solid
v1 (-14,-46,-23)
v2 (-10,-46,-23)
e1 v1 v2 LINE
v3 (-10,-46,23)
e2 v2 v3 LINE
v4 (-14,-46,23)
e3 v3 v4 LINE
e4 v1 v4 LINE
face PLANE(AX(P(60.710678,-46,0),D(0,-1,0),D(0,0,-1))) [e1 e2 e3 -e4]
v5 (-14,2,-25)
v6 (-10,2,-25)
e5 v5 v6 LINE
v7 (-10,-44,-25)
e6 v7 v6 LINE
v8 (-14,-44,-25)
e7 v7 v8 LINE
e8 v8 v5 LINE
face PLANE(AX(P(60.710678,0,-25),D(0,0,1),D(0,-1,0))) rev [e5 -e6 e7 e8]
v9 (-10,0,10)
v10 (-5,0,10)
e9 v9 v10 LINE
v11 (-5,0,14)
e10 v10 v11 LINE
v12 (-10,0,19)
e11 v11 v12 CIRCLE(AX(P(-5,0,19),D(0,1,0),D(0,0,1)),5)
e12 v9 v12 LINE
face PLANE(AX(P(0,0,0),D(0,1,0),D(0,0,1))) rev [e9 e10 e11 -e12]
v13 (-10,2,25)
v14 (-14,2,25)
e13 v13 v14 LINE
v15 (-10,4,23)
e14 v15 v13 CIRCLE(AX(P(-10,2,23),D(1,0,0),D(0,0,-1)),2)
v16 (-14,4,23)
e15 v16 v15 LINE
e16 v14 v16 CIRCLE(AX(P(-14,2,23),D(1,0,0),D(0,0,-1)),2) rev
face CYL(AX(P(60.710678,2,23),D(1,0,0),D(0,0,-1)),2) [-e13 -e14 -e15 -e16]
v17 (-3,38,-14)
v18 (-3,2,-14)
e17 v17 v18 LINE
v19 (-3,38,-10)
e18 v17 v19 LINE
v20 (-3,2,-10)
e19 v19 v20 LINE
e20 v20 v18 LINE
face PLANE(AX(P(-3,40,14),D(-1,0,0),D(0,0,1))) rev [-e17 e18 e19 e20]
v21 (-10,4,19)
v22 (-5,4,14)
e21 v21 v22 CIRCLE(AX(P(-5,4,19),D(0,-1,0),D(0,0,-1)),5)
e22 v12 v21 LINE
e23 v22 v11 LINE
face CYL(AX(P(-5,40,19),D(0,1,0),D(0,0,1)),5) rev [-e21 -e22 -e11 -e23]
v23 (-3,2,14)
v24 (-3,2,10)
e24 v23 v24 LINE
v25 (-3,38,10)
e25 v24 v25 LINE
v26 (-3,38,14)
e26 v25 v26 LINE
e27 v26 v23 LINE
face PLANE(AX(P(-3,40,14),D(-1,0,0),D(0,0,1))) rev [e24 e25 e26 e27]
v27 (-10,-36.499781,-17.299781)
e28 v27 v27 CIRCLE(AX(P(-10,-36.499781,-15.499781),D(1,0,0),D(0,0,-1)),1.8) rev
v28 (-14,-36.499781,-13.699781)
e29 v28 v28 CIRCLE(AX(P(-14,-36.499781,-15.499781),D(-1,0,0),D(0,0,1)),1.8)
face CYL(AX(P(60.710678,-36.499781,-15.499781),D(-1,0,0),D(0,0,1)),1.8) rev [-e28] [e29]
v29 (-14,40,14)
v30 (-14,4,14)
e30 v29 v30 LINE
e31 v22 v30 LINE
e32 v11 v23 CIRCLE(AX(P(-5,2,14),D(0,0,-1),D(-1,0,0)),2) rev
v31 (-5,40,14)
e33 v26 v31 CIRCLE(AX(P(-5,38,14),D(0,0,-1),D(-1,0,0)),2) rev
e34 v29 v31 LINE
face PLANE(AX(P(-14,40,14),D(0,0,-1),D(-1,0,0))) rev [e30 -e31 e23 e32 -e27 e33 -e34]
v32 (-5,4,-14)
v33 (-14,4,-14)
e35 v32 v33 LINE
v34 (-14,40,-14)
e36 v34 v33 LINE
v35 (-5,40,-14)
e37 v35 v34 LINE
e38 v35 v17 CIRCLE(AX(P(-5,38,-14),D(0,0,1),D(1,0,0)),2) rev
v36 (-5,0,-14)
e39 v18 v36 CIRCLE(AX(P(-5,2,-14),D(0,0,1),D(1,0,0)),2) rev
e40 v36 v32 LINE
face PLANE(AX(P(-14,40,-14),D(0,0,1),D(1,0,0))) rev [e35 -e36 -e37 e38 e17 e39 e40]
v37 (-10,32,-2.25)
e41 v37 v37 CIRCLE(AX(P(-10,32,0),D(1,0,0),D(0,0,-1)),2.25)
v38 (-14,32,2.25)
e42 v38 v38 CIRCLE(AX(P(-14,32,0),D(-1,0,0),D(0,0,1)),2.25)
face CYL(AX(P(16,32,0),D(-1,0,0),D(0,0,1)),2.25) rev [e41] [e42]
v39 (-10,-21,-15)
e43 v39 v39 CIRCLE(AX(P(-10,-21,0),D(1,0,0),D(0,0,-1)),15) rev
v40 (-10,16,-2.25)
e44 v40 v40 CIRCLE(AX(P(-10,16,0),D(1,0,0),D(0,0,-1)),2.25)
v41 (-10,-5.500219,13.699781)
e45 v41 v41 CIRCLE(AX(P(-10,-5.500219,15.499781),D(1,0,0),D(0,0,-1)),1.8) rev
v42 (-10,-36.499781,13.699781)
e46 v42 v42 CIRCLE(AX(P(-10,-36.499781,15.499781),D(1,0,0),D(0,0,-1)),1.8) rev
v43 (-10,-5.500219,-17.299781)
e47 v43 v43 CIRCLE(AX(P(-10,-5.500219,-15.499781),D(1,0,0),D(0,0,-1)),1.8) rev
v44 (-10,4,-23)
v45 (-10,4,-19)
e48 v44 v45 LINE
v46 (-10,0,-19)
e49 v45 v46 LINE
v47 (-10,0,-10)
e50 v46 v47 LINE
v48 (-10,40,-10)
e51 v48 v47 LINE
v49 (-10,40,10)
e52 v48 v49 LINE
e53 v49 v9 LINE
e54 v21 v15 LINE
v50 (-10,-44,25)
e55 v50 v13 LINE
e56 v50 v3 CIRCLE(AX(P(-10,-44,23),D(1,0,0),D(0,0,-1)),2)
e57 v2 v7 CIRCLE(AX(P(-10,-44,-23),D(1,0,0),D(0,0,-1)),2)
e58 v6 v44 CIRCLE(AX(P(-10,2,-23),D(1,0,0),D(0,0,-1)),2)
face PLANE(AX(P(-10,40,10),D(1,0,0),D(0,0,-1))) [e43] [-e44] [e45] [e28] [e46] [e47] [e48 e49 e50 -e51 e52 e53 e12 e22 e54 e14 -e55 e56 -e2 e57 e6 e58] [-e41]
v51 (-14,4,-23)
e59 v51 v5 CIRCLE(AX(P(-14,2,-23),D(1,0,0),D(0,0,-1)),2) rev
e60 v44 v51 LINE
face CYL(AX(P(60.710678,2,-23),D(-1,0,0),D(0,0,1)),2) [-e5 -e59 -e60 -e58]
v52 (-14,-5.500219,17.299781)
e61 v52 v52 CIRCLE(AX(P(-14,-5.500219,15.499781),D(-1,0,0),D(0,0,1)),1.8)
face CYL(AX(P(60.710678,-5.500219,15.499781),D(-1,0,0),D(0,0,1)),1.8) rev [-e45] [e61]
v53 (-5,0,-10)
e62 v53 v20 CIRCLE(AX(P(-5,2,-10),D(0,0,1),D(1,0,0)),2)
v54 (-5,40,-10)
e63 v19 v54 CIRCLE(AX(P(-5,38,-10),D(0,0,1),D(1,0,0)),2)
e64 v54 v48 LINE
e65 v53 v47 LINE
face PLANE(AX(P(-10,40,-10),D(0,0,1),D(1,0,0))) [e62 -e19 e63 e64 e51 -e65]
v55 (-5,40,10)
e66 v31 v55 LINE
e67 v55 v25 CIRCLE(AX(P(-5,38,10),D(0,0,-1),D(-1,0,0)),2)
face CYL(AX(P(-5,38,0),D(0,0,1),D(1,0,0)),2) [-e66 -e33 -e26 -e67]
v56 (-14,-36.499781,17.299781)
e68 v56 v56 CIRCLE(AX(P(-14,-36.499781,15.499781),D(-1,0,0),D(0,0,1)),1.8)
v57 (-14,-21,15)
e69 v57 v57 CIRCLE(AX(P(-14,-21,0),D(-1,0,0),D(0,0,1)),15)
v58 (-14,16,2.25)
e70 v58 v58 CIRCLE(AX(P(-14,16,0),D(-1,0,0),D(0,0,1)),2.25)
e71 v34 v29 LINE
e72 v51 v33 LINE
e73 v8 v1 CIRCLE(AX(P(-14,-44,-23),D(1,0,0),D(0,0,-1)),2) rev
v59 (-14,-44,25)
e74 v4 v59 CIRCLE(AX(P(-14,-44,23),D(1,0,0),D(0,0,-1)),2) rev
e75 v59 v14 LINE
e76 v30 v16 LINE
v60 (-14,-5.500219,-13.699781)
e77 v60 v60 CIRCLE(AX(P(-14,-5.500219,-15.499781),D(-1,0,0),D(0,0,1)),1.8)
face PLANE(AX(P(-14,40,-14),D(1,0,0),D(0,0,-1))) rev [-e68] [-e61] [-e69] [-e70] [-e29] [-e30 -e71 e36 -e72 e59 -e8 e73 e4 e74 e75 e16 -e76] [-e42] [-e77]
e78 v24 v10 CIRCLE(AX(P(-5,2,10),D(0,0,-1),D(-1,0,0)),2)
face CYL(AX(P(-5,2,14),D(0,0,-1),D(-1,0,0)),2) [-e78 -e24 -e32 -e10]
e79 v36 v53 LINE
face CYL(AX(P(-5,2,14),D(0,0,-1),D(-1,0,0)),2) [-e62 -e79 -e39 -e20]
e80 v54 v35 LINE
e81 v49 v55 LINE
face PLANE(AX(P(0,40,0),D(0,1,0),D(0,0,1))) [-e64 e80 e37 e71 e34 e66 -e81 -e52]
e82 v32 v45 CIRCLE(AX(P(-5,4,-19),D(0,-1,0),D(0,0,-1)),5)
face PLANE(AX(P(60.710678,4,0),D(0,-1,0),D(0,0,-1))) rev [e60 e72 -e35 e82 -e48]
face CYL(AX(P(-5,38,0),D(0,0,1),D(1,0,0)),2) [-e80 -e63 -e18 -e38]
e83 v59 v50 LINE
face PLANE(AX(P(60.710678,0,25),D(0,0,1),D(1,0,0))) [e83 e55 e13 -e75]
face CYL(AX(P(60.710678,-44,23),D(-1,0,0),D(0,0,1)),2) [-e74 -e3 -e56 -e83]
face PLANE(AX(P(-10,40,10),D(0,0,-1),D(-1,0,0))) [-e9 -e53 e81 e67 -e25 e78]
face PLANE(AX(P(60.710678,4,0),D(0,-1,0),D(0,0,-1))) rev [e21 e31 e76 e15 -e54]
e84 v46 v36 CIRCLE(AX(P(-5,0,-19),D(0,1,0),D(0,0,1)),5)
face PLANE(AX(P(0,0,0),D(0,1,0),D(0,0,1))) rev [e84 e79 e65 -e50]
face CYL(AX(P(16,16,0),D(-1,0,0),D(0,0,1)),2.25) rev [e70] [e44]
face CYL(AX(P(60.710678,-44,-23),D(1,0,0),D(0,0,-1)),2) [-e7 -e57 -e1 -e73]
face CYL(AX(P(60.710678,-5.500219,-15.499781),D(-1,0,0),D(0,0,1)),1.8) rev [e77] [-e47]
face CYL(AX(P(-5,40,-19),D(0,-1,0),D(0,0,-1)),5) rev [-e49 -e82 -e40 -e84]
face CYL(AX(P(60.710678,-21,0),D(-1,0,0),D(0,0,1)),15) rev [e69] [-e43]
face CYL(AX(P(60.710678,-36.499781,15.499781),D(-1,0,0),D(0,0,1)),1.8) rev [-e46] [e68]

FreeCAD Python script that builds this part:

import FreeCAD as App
import Part
import Sketcher
from FreeCAD import Vector
Q = App.Units.Quantity


def edges_at(feature, points):
    """Names of the edges that pass closest to the given points."""
    edges = feature.Shape.Edges
    near = lambda p: min(range(len(edges)), key=lambda i: edges[i].distToShape(Part.Vertex(*p))[0])
    return sorted({f"Edge{near(p) + 1}" for p in points})


def add_polygon(sketch, points):
    """Adds a closed chain of lines whose ends are joined by coincident constraints."""
    first, n = sketch.GeometryCount, len(points)
    for a, b in zip(points, points[1:] + points[:1]):
        sketch.addGeometry(Part.LineSegment(App.Vector(*a, 0), App.Vector(*b, 0)), False)
    for i in range(n):
        sketch.addConstraint(Sketcher.Constraint("Coincident", first + i, 2, first + (i + 1) % n, 1))

doc = App.newDocument("Part")
params = doc.addObject("Spreadsheet::Sheet", "Params")
for row, (alias, value) in enumerate([
    ("sketch1_width", "28 mm"),
    ("sketch1_width2", "20 mm"),
    ("pad1_length", "40 mm"),
    ("sketch2_diameter", "4.5 mm"),
    ("pocket1_length", "30 mm"),
    ("sketch3_diameter", "30 mm"),
    ("sketch3_diameter2", "3.6 mm"),
    ("sketch3_width", "50 mm"),
    ("pad2_length", "4 mm"),
    ("sketch4_width", "17 mm"),
    ("sketch4_height", "28 mm"),
    ("pocket2_length", "40 mm"),
    ("fillet_radius", "2 mm"),
    ("fillet2_radius", "5 mm"),
], start=1):
    params.set(f"A{row}", alias)
    params.set(f"B{row}", "=" + value)
    params.setAlias(f"B{row}", alias)

body = doc.addObject("PartDesign::Body", "Body")

sketch1 = body.newObject("Sketcher::SketchObject", "Sketch")
sketch1.AttachmentSupport = (doc.getObject("XZ_Plane"), [""])
sketch1.MapMode = "FlatFace"
add_polygon(sketch1, [(-14, -14), (-14, 14), (14, 14), (14, -14)])
add_polygon(sketch1, [(10, 10), (-10, 10), (-10, -10), (10, -10)])
sketch1.addConstraint(Sketcher.Constraint("Vertical", 0))
sketch1.addConstraint(Sketcher.Constraint("Horizontal", 1))
sketch1.addConstraint(Sketcher.Constraint("Vertical", 2))
sketch1.addConstraint(Sketcher.Constraint("Horizontal", 3))
sketch1.addConstraint(Sketcher.Constraint("Horizontal", 4))
sketch1.addConstraint(Sketcher.Constraint("Vertical", 5))
sketch1.addConstraint(Sketcher.Constraint("Horizontal", 6))
sketch1.addConstraint(Sketcher.Constraint("Vertical", 7))
sketch1.addConstraint(Sketcher.Constraint("Symmetric", 0, 2, 2, 2, -1, 1))
sketch1.addConstraint(Sketcher.Constraint("Symmetric", 4, 2, 6, 2, -1, 1))
sketch1.addConstraint(Sketcher.Constraint("Equal", 3, 0))
sketch1.addConstraint(Sketcher.Constraint("Equal", 6, 5))
sketch1.addConstraint(Sketcher.Constraint("DistanceX", 1, 1, 1, 2, Q("28 mm")))
sketch1.addConstraint(Sketcher.Constraint("DistanceX", 4, 2, 4, 1, Q("20 mm")))
sketch1.setExpression("Constraints[20]", "Params.sketch1_width")
sketch1.setExpression("Constraints[21]", "Params.sketch1_width2")
pad1 = body.newObject("PartDesign::Pad", "Pad")
pad1.Profile = sketch1
pad1.setExpression("Length", "Params.pad1_length")
pad1.Reversed = True

sketch2 = body.newObject("Sketcher::SketchObject", "Sketch001")
sketch2.AttachmentSupport = (doc.getObject("YZ_Plane"), [""])
sketch2.MapMode = "FlatFace"
sketch2.AttachmentOffset = App.Placement(Vector(0, 0, -14), App.Rotation())
sketch2.addGeometry(Part.Circle(Vector(32, 0, 0), Vector(0, 0, 1), 2.2), False)
sketch2.addGeometry(Part.Circle(Vector(16, 0, 0), Vector(0, 0, 1), 2.2), False)
sketch2.addConstraint(Sketcher.Constraint("Equal", 0, 1))
sketch2.addConstraint(Sketcher.Constraint("PointOnObject", 0, 3, -1))
sketch2.addConstraint(Sketcher.Constraint("PointOnObject", 1, 3, -1))
sketch2.addConstraint(Sketcher.Constraint("Diameter", 0, Q("4.5 mm")))
sketch2.addConstraint(Sketcher.Constraint("DistanceX", -1, 1, 0, 3, Q("32 mm")))
sketch2.addConstraint(Sketcher.Constraint("DistanceX", -1, 1, 1, 3, Q("16 mm")))
sketch2.setExpression("Constraints[3]", "Params.sketch2_diameter")
pocket1 = body.newObject("PartDesign::Pocket", "Pocket")
pocket1.Profile = sketch2
pocket1.setExpression("Length", "Params.pocket1_length")
pocket1.Reversed = True

sketch3 = body.newObject("Sketcher::SketchObject", "Sketch002")
sketch3.AttachmentSupport = (doc.getObject("YZ_Plane"), [""])
sketch3.MapMode = "FlatFace"
sketch3.AttachmentOffset = App.Placement(Vector(0, 0, -14), App.Rotation())
add_polygon(sketch3, [(4, -25), (-46, -25), (-46, 25), (4, 25)])
sketch3.addGeometry(Part.Circle(Vector(-36.5, -15.5, 0), Vector(0, 0, 1), 1.8), False)
sketch3.addGeometry(Part.Circle(Vector(-36.5, 15.5, 0), Vector(0, 0, 1), 1.8), False)
sketch3.addGeometry(Part.Circle(Vector(-21, 0, 0), Vector(0, 0, 1), 15), False)
sketch3.addGeometry(Part.Circle(Vector(-5.5, -15.5, 0), Vector(0, 0, 1), 1.8), False)
sketch3.addGeometry(Part.Circle(Vector(-5.5, 15.5, 0), Vector(0, 0, 1), 1.8), False)
sketch3.addConstraint(Sketcher.Constraint("Horizontal", 0))
sketch3.addConstraint(Sketcher.Constraint("Vertical", 1))
sketch3.addConstraint(Sketcher.Constraint("Horizontal", 2))
sketch3.addConstraint(Sketcher.Constraint("Vertical", 3))
sketch3.addConstraint(Sketcher.Constraint("Equal", 4, 5))
sketch3.addConstraint(Sketcher.Constraint("Equal", 5, 7))
sketch3.addConstraint(Sketcher.Constraint("Equal", 7, 8))
sketch3.addConstraint(Sketcher.Constraint("Symmetric", 4, 3, 5, 3, -1))
sketch3.addConstraint(Sketcher.Constraint("Symmetric", 7, 3, 8, 3, -1))
sketch3.addConstraint(Sketcher.Constraint("PointOnObject", 6, 3, -1))
sketch3.addConstraint(Sketcher.Constraint("Horizontal", 4, 3, 7, 3))
sketch3.addConstraint(Sketcher.Constraint("Equal", 2, 1))
sketch3.addConstraint(Sketcher.Constraint("Diameter", 6, Q("30 mm")))
sketch3.addConstraint(Sketcher.Constraint("Diameter", 4, Q("3.6 mm")))
sketch3.addConstraint(Sketcher.Constraint("DistanceX", 0, 2, 0, 1, Q("50 mm")))
sketch3.addConstraint(Sketcher.Constraint("DistanceX", 6, 3, -1, 1, Q("21 mm")))
sketch3.addConstraint(Sketcher.Constraint("DistanceX", 0, 2, -1, 1, Q("46 mm")))
sketch3.addConstraint(Sketcher.Constraint("DistanceY", 0, 2, -1, 1, Q("25 mm")))
sketch3.addConstraint(Sketcher.Constraint("DistanceX", 4, 3, -1, 1, Q("36.499781 mm")))
sketch3.addConstraint(Sketcher.Constraint("DistanceY", 4, 3, -1, 1, Q("15.499781 mm")))
sketch3.addConstraint(Sketcher.Constraint("DistanceX", 7, 3, -1, 1, Q("5.500219 mm")))
sketch3.setExpression("Constraints[16]", "Params.sketch3_diameter")
sketch3.setExpression("Constraints[17]", "Params.sketch3_diameter2")
sketch3.setExpression("Constraints[18]", "Params.sketch3_width")
pad2 = body.newObject("PartDesign::Pad", "Pad001")
pad2.Profile = sketch3
pad2.setExpression("Length", "Params.pad2_length")

sketch4 = body.newObject("Sketcher::SketchObject", "Sketch003")
sketch4.AttachmentSupport = (doc.getObject("XZ_Plane"), [""])
sketch4.MapMode = "FlatFace"
add_polygon(sketch4, [(-3, 14), (-3, -14), (14, -14), (14, 14)])
sketch4.addConstraint(Sketcher.Constraint("Vertical", 0))
sketch4.addConstraint(Sketcher.Constraint("Horizontal", 1))
sketch4.addConstraint(Sketcher.Constraint("Vertical", 2))
sketch4.addConstraint(Sketcher.Constraint("Horizontal", 3))
sketch4.addConstraint(Sketcher.Constraint("DistanceX", 1, 1, 1, 2, Q("17 mm")))
sketch4.addConstraint(Sketcher.Constraint("DistanceY", 0, 2, 0, 1, Q("28 mm")))
sketch4.addConstraint(Sketcher.Constraint("DistanceX", 0, 2, -1, 1, Q("3 mm")))
sketch4.addConstraint(Sketcher.Constraint("DistanceY", 0, 2, -1, 1, Q("14 mm")))
sketch4.setExpression("Constraints[8]", "Params.sketch4_width")
sketch4.setExpression("Constraints[9]", "Params.sketch4_height")
pocket2 = body.newObject("PartDesign::Pocket", "Pocket001")
pocket2.Profile = sketch4
pocket2.setExpression("Length", "Params.pocket2_length")
doc.recompute()

fillet = body.newObject("PartDesign::Fillet", "Fillet")
fillet.Base = (pocket2, edges_at(pocket2, [
    (-3, 0, -12),
    (-3, 0, 12),
    (-12, 4, 25),
    (-12, -46, 25),
    (-12, -46, -25),
    (-12, 4, -25),
    (-3, 40, -12),
    (-3, 40, 12),
]))
fillet.setExpression("Radius", "Params.fillet_radius")
doc.recompute()

fillet2 = body.newObject("PartDesign::Fillet", "Fillet001")
fillet2.Base = (fillet, edges_at(fillet, [(-10, 2, -14), (-10, 2, 14)]))
fillet2.setExpression("Radius", "Params.fillet2_radius")

doc.recompute()
